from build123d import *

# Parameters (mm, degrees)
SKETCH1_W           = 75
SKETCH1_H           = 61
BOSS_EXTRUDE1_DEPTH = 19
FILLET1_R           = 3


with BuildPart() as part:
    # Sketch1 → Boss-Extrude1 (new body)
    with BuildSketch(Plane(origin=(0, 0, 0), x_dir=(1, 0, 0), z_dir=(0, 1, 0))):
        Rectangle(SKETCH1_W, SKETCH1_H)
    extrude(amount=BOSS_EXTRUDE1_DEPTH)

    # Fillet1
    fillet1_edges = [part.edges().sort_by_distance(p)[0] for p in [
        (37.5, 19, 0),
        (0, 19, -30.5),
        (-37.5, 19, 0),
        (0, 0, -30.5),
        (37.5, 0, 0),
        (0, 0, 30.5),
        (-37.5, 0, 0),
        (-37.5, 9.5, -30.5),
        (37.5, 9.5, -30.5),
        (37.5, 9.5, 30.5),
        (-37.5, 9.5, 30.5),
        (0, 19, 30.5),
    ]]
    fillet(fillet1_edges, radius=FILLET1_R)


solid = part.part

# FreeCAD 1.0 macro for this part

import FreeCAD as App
import Part
import Sketcher

V = App.Vector

doc = App.newDocument("Part")
body = doc.addObject("PartDesign::Body", "Body")

sketch1 = body.newObject("Sketcher::SketchObject", "Sketch")
sketch1.AttachmentSupport = (doc.getObject("XZ_Plane"), [""])
sketch1.MapMode = "FlatFace"
sketch1.addGeometry([
    Part.LineSegment(V(-37.5, -30.5, 0), V(-37.5, 30.5, 0)),
    Part.LineSegment(V(-37.5, 30.5, 0), V(37.5, 30.5, 0)),
    Part.LineSegment(V(37.5, 30.5, 0), V(37.5, -30.5, 0)),
    Part.LineSegment(V(37.5, -30.5, 0), V(-37.5, -30.5, 0)),
], False)
sketch1.addConstraint([
    Sketcher.Constraint("Coincident", 0, 2, 1, 1),
    Sketcher.Constraint("Coincident", 1, 2, 2, 1),
    Sketcher.Constraint("Coincident", 2, 2, 3, 1),
    Sketcher.Constraint("Coincident", 3, 2, 0, 1),
    Sketcher.Constraint("Vertical", 0),
    Sketcher.Constraint("Horizontal", 1),
    Sketcher.Constraint("Vertical", 2),
    Sketcher.Constraint("Horizontal", 3),
    Sketcher.Constraint("Symmetric", 0, 2, 2, 2, -1, 1),
    Sketcher.Constraint("DistanceX", 1, 1, 1, 2, 75.0),
    Sketcher.Constraint("DistanceY", 0, 1, 0, 2, 61.0),
])
pad1 = body.newObject("PartDesign::Pad", "Pad")
pad1.Profile = sketch1
pad1.Length = 19
pad1.Reversed = True
doc.recompute()

fillet = body.newObject("PartDesign::Fillet", "Fillet")
fillet.Base = (pad1, ["Edge1"])
fillet.UseAllEdges = True
fillet.Radius = 3

doc.recompute()
